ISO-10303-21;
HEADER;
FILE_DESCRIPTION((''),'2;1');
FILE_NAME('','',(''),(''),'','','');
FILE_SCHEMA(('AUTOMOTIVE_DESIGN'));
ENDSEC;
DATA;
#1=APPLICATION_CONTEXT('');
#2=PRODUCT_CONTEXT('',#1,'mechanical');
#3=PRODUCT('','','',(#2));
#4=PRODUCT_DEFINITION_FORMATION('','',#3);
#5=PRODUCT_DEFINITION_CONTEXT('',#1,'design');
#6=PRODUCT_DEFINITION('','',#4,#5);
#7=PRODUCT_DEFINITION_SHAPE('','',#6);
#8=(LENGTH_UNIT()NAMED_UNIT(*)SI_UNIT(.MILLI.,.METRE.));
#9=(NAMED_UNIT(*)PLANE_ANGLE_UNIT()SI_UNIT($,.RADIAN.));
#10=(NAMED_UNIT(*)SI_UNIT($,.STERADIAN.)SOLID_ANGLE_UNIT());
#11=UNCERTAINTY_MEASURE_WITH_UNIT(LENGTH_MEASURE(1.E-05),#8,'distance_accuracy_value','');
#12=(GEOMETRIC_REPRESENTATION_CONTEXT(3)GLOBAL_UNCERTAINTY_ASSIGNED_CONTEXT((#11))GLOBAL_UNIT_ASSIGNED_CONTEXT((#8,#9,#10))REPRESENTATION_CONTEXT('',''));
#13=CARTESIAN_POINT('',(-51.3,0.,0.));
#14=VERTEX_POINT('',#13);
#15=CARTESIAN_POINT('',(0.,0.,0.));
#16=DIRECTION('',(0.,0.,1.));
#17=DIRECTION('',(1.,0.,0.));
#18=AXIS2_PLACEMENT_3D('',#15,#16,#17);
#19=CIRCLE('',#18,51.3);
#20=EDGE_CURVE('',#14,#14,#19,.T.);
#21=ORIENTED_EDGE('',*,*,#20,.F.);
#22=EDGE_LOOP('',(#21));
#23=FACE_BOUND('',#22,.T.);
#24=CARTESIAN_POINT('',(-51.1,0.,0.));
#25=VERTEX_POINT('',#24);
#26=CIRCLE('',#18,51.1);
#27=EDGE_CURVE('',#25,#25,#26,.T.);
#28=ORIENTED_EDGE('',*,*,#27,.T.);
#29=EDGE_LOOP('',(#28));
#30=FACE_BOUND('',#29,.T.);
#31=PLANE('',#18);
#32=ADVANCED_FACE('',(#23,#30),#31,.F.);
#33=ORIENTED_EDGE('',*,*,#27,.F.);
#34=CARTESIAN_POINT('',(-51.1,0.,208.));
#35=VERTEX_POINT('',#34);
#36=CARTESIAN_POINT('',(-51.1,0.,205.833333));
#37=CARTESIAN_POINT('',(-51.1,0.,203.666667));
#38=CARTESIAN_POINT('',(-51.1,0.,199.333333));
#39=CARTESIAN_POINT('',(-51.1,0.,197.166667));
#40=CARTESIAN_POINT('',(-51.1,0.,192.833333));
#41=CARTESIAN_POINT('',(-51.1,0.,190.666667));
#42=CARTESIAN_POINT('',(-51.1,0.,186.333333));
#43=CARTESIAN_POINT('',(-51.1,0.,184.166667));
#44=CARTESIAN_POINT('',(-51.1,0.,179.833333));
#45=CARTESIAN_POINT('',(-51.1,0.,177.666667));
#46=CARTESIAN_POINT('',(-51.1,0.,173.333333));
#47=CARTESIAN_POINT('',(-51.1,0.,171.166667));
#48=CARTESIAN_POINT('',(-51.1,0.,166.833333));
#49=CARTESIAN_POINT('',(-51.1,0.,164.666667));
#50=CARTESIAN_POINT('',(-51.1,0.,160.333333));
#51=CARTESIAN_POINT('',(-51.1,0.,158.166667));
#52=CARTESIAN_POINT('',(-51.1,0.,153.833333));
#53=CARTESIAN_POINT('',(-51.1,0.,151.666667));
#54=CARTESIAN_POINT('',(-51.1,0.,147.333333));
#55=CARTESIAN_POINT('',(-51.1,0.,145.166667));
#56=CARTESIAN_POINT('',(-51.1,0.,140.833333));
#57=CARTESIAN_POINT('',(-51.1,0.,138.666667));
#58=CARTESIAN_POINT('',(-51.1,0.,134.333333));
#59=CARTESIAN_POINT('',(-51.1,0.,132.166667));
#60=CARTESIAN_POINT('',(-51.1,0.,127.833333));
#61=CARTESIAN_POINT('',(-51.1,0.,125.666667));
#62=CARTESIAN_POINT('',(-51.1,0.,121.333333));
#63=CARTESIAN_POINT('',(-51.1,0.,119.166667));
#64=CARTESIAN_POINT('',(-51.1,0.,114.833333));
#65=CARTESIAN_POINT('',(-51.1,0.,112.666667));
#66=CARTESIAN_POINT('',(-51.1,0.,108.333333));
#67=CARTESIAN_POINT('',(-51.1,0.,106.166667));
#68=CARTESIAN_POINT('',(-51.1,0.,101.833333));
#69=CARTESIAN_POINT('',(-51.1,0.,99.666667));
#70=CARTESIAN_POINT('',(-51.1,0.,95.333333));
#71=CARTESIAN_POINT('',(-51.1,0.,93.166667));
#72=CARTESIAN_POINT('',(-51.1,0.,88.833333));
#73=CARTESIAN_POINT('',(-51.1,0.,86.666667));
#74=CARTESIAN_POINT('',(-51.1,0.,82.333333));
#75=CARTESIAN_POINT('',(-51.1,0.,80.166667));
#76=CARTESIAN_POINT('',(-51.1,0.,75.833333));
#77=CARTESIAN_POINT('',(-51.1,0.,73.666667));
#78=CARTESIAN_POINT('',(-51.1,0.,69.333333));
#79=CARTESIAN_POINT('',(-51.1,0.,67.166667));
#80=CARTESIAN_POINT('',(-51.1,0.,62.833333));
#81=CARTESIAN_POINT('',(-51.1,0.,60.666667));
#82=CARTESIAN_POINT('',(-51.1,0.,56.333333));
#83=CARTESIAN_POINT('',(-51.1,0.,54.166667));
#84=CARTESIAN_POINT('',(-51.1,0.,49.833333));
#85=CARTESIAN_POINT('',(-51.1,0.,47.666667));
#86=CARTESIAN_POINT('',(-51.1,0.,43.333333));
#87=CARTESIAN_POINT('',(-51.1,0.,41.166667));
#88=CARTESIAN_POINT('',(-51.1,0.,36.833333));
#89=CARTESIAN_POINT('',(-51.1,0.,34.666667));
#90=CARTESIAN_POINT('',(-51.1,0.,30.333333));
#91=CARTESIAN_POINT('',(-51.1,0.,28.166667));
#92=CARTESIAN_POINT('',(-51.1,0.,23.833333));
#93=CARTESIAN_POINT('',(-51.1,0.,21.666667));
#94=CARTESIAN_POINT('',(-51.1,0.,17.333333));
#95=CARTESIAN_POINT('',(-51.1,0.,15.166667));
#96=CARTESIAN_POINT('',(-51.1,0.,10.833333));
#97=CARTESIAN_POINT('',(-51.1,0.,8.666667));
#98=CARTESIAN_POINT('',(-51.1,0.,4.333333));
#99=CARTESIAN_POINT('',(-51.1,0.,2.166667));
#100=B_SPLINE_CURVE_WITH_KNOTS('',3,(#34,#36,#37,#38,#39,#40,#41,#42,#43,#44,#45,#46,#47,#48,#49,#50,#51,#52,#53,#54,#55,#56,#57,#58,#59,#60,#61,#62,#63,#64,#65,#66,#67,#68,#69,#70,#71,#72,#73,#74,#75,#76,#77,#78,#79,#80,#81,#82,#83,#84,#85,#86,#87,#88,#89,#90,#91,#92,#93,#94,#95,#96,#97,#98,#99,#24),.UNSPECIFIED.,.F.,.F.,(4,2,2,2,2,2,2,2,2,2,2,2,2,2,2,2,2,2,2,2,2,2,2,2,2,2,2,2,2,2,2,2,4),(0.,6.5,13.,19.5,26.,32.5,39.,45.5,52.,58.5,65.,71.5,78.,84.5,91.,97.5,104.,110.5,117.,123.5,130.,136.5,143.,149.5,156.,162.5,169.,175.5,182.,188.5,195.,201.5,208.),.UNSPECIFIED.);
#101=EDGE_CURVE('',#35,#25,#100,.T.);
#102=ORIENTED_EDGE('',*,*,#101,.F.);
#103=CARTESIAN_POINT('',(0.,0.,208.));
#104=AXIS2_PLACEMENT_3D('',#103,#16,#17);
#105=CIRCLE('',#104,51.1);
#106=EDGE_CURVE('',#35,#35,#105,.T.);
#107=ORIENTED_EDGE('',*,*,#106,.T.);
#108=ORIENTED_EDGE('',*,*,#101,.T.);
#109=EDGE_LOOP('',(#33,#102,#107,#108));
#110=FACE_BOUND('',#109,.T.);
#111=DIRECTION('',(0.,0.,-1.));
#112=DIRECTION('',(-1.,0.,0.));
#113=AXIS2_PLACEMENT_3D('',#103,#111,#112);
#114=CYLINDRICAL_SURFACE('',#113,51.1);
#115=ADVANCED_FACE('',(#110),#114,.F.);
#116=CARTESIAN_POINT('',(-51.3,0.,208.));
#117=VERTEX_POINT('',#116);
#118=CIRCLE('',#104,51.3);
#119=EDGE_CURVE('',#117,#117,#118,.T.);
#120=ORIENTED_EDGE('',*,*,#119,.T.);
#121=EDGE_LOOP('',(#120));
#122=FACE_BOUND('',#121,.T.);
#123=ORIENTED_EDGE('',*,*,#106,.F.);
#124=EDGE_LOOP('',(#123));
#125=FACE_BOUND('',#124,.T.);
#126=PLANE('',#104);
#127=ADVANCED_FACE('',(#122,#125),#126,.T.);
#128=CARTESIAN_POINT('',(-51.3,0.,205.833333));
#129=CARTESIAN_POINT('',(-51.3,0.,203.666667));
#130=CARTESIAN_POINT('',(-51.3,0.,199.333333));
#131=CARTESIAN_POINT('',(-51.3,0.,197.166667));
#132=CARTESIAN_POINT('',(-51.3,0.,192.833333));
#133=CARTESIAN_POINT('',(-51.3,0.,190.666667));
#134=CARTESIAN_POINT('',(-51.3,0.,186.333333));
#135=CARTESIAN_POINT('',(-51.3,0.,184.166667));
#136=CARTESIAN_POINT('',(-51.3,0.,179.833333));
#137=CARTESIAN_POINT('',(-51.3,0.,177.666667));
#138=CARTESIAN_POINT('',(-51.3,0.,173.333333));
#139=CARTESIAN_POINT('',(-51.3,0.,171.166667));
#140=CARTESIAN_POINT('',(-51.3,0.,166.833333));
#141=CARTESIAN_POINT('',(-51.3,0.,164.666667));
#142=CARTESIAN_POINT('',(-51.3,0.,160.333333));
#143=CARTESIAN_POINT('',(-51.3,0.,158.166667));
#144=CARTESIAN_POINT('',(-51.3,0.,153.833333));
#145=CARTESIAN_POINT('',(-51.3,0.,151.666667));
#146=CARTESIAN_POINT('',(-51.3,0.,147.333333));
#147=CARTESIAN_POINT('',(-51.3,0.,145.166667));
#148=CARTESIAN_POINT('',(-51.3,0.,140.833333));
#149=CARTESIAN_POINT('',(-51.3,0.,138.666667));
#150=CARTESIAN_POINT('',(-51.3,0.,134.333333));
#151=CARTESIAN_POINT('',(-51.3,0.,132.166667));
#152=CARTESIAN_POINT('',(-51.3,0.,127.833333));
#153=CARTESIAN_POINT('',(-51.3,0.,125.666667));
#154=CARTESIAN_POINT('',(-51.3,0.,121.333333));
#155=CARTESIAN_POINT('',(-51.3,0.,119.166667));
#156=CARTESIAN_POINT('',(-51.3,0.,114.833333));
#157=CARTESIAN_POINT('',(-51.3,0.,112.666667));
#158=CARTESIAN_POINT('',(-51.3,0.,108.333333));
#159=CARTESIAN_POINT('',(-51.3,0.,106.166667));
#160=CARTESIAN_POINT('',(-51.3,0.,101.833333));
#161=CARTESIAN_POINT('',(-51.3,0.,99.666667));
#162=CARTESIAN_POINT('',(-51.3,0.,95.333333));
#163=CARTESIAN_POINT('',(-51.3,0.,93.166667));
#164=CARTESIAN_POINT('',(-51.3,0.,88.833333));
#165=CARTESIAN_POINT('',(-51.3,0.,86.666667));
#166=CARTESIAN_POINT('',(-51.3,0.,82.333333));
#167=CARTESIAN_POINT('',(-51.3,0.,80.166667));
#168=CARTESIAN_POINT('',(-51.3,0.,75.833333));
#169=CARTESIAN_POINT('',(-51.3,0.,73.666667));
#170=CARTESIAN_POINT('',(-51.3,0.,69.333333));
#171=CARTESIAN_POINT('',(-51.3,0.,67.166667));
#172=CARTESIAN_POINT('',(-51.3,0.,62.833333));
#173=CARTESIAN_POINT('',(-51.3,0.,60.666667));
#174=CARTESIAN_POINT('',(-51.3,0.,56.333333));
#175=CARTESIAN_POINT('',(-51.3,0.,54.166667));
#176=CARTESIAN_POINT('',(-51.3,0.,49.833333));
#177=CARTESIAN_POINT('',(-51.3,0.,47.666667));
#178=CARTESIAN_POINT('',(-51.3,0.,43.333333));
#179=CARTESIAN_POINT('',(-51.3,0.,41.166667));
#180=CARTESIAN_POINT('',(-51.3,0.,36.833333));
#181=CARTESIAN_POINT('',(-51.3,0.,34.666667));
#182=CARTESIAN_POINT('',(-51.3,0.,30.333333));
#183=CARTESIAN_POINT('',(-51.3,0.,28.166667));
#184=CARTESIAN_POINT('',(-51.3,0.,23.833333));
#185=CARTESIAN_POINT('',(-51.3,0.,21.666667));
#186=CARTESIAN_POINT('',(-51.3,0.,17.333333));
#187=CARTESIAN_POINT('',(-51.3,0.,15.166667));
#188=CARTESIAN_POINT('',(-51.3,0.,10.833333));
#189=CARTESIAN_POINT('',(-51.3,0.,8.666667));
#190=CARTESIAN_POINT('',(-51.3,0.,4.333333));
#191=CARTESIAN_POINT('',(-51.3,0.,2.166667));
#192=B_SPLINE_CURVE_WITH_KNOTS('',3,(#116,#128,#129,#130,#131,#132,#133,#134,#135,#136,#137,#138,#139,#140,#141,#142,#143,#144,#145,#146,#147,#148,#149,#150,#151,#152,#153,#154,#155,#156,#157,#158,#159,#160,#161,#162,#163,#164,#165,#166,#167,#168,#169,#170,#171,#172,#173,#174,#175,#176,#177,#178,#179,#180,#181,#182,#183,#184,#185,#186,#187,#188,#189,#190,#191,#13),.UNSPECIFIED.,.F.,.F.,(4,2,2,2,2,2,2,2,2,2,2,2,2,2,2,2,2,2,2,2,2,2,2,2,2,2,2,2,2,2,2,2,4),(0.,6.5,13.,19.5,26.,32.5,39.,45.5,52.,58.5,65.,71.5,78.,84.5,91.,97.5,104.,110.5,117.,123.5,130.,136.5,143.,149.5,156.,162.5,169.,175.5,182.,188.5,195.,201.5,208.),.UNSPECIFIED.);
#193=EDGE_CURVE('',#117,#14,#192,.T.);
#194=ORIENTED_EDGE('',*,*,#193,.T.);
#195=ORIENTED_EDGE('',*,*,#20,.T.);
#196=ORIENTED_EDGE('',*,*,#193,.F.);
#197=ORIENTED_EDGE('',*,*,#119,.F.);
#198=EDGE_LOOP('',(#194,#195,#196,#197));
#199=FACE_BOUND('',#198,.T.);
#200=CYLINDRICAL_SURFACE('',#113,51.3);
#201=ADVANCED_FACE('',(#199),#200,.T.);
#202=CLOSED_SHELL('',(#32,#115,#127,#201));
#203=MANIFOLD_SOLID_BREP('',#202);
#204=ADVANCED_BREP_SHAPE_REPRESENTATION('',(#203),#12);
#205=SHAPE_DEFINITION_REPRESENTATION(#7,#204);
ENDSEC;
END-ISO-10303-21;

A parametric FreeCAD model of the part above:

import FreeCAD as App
import Part
import Sketcher
Q = App.Units.Quantity

doc = App.newDocument("Part")
body = doc.addObject("PartDesign::Body", "Body")

sketch1 = body.newObject("Sketcher::SketchObject", "Sketch")
sketch1.AttachmentSupport = (doc.getObject("XY_Plane"), [""])
sketch1.MapMode = "FlatFace"
sketch1.addGeometry(Part.Circle(App.Vector(0, 0, 0), App.Vector(0, 0, 1), 51.3), False)
sketch1.addGeometry(Part.Circle(App.Vector(0, 0, 0), App.Vector(0, 0, 1), 51.1), False)
sketch1.addConstraint(Sketcher.Constraint("Coincident", 0, 3, -1, 1))
sketch1.addConstraint(Sketcher.Constraint("Coincident", 1, 3, -1, 1))
sketch1.addConstraint(Sketcher.Constraint("Diameter", 0, Q("102.6 mm")))
sketch1.addConstraint(Sketcher.Constraint("Diameter", 1, Q("102.2 mm")))
pad1 = body.newObject("PartDesign::Pad", "Pad")
pad1.Profile = sketch1
pad1.Length = 208

doc.recompute()
